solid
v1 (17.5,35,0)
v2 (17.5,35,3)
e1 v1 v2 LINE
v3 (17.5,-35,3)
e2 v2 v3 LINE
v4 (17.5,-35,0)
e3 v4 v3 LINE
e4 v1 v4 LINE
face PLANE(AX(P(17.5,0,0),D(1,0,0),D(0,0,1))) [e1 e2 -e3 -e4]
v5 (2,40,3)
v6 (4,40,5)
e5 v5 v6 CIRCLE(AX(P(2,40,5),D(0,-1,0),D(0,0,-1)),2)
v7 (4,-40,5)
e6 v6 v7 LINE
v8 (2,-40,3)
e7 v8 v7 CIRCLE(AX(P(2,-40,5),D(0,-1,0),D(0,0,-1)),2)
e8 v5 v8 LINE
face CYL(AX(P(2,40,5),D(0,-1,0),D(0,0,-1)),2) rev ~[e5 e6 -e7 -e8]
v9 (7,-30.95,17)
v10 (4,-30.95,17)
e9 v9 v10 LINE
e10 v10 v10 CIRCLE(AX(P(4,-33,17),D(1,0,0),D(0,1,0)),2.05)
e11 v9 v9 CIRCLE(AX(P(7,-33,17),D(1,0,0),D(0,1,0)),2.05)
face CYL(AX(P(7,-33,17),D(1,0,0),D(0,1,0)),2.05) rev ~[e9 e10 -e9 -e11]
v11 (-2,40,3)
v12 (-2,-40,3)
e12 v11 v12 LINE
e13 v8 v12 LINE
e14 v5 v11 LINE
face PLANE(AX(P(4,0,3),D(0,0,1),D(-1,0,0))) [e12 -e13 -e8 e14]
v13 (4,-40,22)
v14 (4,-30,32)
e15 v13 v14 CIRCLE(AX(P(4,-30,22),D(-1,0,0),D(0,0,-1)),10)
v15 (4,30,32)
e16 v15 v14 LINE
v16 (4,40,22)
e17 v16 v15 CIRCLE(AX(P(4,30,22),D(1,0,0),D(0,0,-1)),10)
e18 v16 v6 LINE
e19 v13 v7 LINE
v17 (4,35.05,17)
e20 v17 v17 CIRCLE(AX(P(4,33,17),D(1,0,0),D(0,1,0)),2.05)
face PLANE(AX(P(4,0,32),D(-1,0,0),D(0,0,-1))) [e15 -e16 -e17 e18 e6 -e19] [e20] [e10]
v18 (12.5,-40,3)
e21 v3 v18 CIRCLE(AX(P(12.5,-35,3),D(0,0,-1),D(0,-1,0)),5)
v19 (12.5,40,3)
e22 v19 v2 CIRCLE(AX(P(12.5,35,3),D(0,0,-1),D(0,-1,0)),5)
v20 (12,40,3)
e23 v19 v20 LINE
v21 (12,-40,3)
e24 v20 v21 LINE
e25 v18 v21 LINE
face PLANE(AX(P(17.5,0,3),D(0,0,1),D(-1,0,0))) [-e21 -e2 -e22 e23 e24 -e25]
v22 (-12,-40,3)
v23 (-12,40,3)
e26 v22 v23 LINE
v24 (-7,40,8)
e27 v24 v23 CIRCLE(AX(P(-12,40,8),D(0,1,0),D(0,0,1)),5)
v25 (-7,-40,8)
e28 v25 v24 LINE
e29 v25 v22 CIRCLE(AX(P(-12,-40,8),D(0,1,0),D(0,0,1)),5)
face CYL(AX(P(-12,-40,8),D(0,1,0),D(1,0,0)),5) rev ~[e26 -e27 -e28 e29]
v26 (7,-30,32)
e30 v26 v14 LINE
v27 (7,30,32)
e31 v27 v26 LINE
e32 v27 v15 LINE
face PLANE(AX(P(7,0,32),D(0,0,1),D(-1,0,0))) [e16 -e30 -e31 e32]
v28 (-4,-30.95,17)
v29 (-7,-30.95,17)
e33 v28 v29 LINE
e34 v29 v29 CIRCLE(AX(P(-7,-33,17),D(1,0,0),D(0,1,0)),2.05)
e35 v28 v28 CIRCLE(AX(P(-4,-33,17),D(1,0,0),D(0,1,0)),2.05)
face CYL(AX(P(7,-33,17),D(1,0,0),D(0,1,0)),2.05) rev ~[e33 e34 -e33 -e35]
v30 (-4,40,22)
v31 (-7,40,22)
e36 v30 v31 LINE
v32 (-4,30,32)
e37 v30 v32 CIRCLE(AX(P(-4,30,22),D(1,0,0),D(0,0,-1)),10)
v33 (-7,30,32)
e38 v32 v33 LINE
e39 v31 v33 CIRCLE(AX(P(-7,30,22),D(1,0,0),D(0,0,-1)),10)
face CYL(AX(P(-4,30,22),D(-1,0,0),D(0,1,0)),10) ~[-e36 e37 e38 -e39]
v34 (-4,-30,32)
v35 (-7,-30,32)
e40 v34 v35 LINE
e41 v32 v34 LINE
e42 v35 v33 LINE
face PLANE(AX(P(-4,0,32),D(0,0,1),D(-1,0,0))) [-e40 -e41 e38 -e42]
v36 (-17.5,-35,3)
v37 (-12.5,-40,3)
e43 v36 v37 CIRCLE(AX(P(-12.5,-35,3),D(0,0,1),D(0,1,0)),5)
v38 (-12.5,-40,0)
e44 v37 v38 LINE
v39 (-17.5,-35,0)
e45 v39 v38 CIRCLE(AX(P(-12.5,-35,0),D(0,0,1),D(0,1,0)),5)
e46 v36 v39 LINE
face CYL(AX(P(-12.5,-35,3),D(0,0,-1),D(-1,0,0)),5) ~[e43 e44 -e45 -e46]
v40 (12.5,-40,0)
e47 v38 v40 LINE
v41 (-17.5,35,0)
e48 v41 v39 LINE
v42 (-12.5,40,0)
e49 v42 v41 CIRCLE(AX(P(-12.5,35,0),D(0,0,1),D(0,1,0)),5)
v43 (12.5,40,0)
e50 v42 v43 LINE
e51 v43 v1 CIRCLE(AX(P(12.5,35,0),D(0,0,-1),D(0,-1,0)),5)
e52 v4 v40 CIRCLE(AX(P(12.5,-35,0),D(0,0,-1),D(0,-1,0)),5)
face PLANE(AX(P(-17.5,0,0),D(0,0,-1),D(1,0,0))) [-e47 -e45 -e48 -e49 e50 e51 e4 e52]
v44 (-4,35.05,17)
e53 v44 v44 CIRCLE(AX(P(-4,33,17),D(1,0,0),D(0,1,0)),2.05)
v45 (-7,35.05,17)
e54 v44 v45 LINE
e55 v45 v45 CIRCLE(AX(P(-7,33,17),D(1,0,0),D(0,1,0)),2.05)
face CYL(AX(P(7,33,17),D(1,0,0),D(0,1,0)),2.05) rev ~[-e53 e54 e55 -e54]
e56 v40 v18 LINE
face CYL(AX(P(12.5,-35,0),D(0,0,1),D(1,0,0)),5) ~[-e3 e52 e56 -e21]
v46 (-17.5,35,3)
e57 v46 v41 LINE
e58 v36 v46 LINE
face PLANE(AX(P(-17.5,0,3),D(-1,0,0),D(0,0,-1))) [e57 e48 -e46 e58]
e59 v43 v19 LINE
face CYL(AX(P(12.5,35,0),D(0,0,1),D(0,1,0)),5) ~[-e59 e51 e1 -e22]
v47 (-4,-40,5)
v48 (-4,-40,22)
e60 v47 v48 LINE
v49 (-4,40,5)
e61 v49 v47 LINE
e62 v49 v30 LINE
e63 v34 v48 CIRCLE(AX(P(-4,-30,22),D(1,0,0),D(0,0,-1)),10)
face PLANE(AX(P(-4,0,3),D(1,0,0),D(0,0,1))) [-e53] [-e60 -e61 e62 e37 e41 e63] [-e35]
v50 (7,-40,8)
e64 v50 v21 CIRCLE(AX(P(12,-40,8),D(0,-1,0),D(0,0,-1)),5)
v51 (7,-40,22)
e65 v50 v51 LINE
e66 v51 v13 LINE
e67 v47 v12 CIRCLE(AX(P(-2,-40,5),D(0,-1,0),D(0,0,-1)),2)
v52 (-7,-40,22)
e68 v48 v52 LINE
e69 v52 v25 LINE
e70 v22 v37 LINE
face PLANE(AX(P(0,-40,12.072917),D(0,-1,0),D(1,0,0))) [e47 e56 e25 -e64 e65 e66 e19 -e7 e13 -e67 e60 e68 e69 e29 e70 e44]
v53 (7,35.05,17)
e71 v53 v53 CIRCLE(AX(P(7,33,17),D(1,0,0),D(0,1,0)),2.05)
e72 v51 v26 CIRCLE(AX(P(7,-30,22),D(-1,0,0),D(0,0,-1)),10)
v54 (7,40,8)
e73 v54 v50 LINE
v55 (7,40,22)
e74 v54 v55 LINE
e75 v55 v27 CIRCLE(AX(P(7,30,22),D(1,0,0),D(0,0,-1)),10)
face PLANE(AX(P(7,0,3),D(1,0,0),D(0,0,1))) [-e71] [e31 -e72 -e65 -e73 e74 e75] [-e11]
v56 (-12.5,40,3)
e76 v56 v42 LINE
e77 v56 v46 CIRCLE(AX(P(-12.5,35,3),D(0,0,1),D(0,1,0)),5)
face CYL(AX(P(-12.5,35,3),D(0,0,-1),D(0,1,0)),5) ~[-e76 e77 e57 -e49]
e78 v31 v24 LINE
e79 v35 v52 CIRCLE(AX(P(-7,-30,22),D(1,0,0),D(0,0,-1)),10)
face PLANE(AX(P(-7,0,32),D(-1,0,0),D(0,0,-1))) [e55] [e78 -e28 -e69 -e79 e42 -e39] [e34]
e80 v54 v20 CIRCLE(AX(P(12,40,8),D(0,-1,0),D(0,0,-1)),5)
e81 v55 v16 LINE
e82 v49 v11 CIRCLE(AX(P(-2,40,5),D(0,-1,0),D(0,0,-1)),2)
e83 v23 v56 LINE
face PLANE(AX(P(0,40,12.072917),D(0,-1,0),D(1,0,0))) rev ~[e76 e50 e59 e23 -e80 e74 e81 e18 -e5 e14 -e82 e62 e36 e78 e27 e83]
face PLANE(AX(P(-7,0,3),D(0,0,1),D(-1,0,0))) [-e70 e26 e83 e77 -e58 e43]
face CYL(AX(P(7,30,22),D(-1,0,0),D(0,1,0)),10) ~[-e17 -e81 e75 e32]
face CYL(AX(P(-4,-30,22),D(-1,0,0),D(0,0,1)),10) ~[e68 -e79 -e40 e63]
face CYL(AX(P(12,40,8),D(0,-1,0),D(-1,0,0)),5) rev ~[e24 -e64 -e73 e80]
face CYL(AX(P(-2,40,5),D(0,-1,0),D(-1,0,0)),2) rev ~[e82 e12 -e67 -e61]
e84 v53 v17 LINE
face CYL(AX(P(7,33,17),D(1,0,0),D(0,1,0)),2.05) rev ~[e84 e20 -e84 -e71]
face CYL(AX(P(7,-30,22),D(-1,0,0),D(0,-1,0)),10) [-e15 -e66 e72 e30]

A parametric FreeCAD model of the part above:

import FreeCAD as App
import Part
import Sketcher
from FreeCAD import Vector


def edges_at(feature, points):
    """Names of the edges that pass closest to the given points."""
    edges = feature.Shape.Edges
    near = lambda p: min(range(len(edges)), key=lambda i: edges[i].distToShape(Part.Vertex(*p))[0])
    return sorted({f"Edge{near(p) + 1}" for p in points})


def add_polygon(sketch, points):
    """Adds a closed chain of lines whose ends are joined by coincident constraints."""
    first, n = sketch.GeometryCount, len(points)
    for a, b in zip(points, points[1:] + points[:1]):
        sketch.addGeometry(Part.LineSegment(App.Vector(*a, 0), App.Vector(*b, 0)), False)
    for i in range(n):
        sketch.addConstraint(Sketcher.Constraint("Coincident", first + i, 2, first + (i + 1) % n, 1))

doc = App.newDocument("Part")
params = doc.addObject("Spreadsheet::Sheet", "Params")
for row, (alias, value) in enumerate([
    ("sketch1_width", "35 mm"),
    ("sketch1_width2", "3 mm"),
    ("sketch1_width3", "8 mm"),
    ("sketch1_height", "29 mm"),
    ("pad1_length", "80 mm"),
    ("fillet_radius", "2 mm"),
    ("fillet2_radius", "10 mm"),
    ("sketch2_diameter", "4.1 mm"),
    ("fillet3_radius", "5 mm"),
    ("fillet4_radius", "5 mm"),
], start=1):
    params.set(f"A{row}", alias)
    params.set(f"B{row}", "=" + value)
    params.setAlias(f"B{row}", alias)

body = doc.addObject("PartDesign::Body", "Body")

# Sketch on XZ plane
sketch1 = body.newObject("Sketcher::SketchObject", "Sketch")
sketch1.AttachmentSupport = (doc.getObject("XZ_Plane"), [""])
sketch1.MapMode = "FlatFace"
add_polygon(sketch1, [(-17.5, 3), (-17.5, 0), (17.5, 0), (17.5, 3), (7, 3), (7, 32), (4, 32), (4, 3), (-4, 3), (-4, 32), (-7, 32), (-7, 3)])  # lines 0-11
sketch1.addConstraint(Sketcher.Constraint("Vertical", 0))
sketch1.addConstraint(Sketcher.Constraint("Horizontal", 1))
sketch1.addConstraint(Sketcher.Constraint("Vertical", 2))
sketch1.addConstraint(Sketcher.Constraint("Horizontal", 3))
sketch1.addConstraint(Sketcher.Constraint("Vertical", 4))
sketch1.addConstraint(Sketcher.Constraint("Horizontal", 5))
sketch1.addConstraint(Sketcher.Constraint("Vertical", 6))
sketch1.addConstraint(Sketcher.Constraint("Horizontal", 7))
sketch1.addConstraint(Sketcher.Constraint("Vertical", 8))
sketch1.addConstraint(Sketcher.Constraint("Horizontal", 9))
sketch1.addConstraint(Sketcher.Constraint("Vertical", 10))
sketch1.addConstraint(Sketcher.Constraint("Horizontal", 11))
sketch1.addConstraint(Sketcher.Constraint("Symmetric", 0, 2, 1, 2, -1, 1))
sketch1.addConstraint(Sketcher.Constraint("Symmetric", 5, 2, 8, 2, -2))
sketch1.addConstraint(Sketcher.Constraint("Symmetric", 3, 2, 10, 2, -2))
sketch1.addConstraint(Sketcher.Constraint("Horizontal", 3, 2, 6, 2))
sketch1.addConstraint(Sketcher.Constraint("Equal", 9, 0))
sketch1.addConstraint(Sketcher.Constraint("DistanceX", 1, 1, 1, 2, 35.0))
sketch1.addConstraint(Sketcher.Constraint("DistanceX", 5, 2, 5, 1, 3.0))
sketch1.addConstraint(Sketcher.Constraint("DistanceX", 7, 2, 7, 1, 8.0))
sketch1.addConstraint(Sketcher.Constraint("DistanceY", 4, 1, 4, 2, 29.0))
sketch1.setExpression("Constraints[29]", "Params.sketch1_width")
sketch1.setExpression("Constraints[30]", "Params.sketch1_width2")
sketch1.setExpression("Constraints[31]", "Params.sketch1_width3")
sketch1.setExpression("Constraints[32]", "Params.sketch1_height")
pad1 = body.newObject("PartDesign::Pad", "Pad")
pad1.Profile = sketch1
pad1.setExpression("Length", "Params.pad1_length")
pad1.Midplane = True
doc.recompute()

fillet = body.newObject("PartDesign::Fillet", "Fillet")
fillet.Base = (pad1, edges_at(pad1, [(-4, 0, 3), (4, 0, 3)]))
fillet.setExpression("Radius", "Params.fillet_radius")
doc.recompute()

fillet2 = body.newObject("PartDesign::Fillet", "Fillet001")
fillet2.Base = (fillet, edges_at(fillet, [
    (5.5, 40, 32),
    (-5.5, 40, 32),
    (5.5, -40, 32),
    (-5.5, -40, 32),
]))
fillet2.setExpression("Radius", "Params.fillet2_radius")

# Sketch on YZ plane
sketch2 = body.newObject("Sketcher::SketchObject", "Sketch001")
sketch2.AttachmentSupport = (doc.getObject("YZ_Plane"), [""])
sketch2.MapMode = "FlatFace"
sketch2.AttachmentOffset = App.Placement(Vector(0, 0, 7), App.Rotation())
sketch2.addGeometry(Part.Circle(Vector(-33, 17, 0), Vector(0, 0, 1), 2), False)
sketch2.addGeometry(Part.Circle(Vector(33, 17, 0), Vector(0, 0, 1), 2), False)
sketch2.addConstraint(Sketcher.Constraint("Equal", 0, 1))
sketch2.addConstraint(Sketcher.Constraint("Symmetric", 0, 3, 1, 3, -2))
sketch2.addConstraint(Sketcher.Constraint("Diameter", 0, 4.1))
sketch2.addConstraint(Sketcher.Constraint("DistanceX", 0, 3, -1, 1, 33.0))
sketch2.addConstraint(Sketcher.Constraint("DistanceY", -1, 1, 0, 3, 17.0))
sketch2.setExpression("Constraints[2]", "Params.sketch2_diameter")
pocket1 = body.newObject("PartDesign::Pocket", "Pocket")
pocket1.Profile = sketch2
pocket1.Type = "ThroughAll"
doc.recompute()

fillet3 = body.newObject("PartDesign::Fillet", "Fillet002")
fillet3.Base = (pocket1, edges_at(pocket1, [(7, 0, 3), (-7, 0, 3)]))
fillet3.setExpression("Radius", "Params.fillet3_radius")
doc.recompute()

fillet4 = body.newObject("PartDesign::Fillet", "Fillet003")
fillet4.Base = (fillet3, edges_at(fillet3, [
    (-17.5, -40, 1.5),
    (17.5, -40, 1.5),
    (17.5, 40, 1.5),
    (-17.5, 40, 1.5),
]))
fillet4.setExpression("Radius", "Params.fillet4_radius")

doc.recompute()
